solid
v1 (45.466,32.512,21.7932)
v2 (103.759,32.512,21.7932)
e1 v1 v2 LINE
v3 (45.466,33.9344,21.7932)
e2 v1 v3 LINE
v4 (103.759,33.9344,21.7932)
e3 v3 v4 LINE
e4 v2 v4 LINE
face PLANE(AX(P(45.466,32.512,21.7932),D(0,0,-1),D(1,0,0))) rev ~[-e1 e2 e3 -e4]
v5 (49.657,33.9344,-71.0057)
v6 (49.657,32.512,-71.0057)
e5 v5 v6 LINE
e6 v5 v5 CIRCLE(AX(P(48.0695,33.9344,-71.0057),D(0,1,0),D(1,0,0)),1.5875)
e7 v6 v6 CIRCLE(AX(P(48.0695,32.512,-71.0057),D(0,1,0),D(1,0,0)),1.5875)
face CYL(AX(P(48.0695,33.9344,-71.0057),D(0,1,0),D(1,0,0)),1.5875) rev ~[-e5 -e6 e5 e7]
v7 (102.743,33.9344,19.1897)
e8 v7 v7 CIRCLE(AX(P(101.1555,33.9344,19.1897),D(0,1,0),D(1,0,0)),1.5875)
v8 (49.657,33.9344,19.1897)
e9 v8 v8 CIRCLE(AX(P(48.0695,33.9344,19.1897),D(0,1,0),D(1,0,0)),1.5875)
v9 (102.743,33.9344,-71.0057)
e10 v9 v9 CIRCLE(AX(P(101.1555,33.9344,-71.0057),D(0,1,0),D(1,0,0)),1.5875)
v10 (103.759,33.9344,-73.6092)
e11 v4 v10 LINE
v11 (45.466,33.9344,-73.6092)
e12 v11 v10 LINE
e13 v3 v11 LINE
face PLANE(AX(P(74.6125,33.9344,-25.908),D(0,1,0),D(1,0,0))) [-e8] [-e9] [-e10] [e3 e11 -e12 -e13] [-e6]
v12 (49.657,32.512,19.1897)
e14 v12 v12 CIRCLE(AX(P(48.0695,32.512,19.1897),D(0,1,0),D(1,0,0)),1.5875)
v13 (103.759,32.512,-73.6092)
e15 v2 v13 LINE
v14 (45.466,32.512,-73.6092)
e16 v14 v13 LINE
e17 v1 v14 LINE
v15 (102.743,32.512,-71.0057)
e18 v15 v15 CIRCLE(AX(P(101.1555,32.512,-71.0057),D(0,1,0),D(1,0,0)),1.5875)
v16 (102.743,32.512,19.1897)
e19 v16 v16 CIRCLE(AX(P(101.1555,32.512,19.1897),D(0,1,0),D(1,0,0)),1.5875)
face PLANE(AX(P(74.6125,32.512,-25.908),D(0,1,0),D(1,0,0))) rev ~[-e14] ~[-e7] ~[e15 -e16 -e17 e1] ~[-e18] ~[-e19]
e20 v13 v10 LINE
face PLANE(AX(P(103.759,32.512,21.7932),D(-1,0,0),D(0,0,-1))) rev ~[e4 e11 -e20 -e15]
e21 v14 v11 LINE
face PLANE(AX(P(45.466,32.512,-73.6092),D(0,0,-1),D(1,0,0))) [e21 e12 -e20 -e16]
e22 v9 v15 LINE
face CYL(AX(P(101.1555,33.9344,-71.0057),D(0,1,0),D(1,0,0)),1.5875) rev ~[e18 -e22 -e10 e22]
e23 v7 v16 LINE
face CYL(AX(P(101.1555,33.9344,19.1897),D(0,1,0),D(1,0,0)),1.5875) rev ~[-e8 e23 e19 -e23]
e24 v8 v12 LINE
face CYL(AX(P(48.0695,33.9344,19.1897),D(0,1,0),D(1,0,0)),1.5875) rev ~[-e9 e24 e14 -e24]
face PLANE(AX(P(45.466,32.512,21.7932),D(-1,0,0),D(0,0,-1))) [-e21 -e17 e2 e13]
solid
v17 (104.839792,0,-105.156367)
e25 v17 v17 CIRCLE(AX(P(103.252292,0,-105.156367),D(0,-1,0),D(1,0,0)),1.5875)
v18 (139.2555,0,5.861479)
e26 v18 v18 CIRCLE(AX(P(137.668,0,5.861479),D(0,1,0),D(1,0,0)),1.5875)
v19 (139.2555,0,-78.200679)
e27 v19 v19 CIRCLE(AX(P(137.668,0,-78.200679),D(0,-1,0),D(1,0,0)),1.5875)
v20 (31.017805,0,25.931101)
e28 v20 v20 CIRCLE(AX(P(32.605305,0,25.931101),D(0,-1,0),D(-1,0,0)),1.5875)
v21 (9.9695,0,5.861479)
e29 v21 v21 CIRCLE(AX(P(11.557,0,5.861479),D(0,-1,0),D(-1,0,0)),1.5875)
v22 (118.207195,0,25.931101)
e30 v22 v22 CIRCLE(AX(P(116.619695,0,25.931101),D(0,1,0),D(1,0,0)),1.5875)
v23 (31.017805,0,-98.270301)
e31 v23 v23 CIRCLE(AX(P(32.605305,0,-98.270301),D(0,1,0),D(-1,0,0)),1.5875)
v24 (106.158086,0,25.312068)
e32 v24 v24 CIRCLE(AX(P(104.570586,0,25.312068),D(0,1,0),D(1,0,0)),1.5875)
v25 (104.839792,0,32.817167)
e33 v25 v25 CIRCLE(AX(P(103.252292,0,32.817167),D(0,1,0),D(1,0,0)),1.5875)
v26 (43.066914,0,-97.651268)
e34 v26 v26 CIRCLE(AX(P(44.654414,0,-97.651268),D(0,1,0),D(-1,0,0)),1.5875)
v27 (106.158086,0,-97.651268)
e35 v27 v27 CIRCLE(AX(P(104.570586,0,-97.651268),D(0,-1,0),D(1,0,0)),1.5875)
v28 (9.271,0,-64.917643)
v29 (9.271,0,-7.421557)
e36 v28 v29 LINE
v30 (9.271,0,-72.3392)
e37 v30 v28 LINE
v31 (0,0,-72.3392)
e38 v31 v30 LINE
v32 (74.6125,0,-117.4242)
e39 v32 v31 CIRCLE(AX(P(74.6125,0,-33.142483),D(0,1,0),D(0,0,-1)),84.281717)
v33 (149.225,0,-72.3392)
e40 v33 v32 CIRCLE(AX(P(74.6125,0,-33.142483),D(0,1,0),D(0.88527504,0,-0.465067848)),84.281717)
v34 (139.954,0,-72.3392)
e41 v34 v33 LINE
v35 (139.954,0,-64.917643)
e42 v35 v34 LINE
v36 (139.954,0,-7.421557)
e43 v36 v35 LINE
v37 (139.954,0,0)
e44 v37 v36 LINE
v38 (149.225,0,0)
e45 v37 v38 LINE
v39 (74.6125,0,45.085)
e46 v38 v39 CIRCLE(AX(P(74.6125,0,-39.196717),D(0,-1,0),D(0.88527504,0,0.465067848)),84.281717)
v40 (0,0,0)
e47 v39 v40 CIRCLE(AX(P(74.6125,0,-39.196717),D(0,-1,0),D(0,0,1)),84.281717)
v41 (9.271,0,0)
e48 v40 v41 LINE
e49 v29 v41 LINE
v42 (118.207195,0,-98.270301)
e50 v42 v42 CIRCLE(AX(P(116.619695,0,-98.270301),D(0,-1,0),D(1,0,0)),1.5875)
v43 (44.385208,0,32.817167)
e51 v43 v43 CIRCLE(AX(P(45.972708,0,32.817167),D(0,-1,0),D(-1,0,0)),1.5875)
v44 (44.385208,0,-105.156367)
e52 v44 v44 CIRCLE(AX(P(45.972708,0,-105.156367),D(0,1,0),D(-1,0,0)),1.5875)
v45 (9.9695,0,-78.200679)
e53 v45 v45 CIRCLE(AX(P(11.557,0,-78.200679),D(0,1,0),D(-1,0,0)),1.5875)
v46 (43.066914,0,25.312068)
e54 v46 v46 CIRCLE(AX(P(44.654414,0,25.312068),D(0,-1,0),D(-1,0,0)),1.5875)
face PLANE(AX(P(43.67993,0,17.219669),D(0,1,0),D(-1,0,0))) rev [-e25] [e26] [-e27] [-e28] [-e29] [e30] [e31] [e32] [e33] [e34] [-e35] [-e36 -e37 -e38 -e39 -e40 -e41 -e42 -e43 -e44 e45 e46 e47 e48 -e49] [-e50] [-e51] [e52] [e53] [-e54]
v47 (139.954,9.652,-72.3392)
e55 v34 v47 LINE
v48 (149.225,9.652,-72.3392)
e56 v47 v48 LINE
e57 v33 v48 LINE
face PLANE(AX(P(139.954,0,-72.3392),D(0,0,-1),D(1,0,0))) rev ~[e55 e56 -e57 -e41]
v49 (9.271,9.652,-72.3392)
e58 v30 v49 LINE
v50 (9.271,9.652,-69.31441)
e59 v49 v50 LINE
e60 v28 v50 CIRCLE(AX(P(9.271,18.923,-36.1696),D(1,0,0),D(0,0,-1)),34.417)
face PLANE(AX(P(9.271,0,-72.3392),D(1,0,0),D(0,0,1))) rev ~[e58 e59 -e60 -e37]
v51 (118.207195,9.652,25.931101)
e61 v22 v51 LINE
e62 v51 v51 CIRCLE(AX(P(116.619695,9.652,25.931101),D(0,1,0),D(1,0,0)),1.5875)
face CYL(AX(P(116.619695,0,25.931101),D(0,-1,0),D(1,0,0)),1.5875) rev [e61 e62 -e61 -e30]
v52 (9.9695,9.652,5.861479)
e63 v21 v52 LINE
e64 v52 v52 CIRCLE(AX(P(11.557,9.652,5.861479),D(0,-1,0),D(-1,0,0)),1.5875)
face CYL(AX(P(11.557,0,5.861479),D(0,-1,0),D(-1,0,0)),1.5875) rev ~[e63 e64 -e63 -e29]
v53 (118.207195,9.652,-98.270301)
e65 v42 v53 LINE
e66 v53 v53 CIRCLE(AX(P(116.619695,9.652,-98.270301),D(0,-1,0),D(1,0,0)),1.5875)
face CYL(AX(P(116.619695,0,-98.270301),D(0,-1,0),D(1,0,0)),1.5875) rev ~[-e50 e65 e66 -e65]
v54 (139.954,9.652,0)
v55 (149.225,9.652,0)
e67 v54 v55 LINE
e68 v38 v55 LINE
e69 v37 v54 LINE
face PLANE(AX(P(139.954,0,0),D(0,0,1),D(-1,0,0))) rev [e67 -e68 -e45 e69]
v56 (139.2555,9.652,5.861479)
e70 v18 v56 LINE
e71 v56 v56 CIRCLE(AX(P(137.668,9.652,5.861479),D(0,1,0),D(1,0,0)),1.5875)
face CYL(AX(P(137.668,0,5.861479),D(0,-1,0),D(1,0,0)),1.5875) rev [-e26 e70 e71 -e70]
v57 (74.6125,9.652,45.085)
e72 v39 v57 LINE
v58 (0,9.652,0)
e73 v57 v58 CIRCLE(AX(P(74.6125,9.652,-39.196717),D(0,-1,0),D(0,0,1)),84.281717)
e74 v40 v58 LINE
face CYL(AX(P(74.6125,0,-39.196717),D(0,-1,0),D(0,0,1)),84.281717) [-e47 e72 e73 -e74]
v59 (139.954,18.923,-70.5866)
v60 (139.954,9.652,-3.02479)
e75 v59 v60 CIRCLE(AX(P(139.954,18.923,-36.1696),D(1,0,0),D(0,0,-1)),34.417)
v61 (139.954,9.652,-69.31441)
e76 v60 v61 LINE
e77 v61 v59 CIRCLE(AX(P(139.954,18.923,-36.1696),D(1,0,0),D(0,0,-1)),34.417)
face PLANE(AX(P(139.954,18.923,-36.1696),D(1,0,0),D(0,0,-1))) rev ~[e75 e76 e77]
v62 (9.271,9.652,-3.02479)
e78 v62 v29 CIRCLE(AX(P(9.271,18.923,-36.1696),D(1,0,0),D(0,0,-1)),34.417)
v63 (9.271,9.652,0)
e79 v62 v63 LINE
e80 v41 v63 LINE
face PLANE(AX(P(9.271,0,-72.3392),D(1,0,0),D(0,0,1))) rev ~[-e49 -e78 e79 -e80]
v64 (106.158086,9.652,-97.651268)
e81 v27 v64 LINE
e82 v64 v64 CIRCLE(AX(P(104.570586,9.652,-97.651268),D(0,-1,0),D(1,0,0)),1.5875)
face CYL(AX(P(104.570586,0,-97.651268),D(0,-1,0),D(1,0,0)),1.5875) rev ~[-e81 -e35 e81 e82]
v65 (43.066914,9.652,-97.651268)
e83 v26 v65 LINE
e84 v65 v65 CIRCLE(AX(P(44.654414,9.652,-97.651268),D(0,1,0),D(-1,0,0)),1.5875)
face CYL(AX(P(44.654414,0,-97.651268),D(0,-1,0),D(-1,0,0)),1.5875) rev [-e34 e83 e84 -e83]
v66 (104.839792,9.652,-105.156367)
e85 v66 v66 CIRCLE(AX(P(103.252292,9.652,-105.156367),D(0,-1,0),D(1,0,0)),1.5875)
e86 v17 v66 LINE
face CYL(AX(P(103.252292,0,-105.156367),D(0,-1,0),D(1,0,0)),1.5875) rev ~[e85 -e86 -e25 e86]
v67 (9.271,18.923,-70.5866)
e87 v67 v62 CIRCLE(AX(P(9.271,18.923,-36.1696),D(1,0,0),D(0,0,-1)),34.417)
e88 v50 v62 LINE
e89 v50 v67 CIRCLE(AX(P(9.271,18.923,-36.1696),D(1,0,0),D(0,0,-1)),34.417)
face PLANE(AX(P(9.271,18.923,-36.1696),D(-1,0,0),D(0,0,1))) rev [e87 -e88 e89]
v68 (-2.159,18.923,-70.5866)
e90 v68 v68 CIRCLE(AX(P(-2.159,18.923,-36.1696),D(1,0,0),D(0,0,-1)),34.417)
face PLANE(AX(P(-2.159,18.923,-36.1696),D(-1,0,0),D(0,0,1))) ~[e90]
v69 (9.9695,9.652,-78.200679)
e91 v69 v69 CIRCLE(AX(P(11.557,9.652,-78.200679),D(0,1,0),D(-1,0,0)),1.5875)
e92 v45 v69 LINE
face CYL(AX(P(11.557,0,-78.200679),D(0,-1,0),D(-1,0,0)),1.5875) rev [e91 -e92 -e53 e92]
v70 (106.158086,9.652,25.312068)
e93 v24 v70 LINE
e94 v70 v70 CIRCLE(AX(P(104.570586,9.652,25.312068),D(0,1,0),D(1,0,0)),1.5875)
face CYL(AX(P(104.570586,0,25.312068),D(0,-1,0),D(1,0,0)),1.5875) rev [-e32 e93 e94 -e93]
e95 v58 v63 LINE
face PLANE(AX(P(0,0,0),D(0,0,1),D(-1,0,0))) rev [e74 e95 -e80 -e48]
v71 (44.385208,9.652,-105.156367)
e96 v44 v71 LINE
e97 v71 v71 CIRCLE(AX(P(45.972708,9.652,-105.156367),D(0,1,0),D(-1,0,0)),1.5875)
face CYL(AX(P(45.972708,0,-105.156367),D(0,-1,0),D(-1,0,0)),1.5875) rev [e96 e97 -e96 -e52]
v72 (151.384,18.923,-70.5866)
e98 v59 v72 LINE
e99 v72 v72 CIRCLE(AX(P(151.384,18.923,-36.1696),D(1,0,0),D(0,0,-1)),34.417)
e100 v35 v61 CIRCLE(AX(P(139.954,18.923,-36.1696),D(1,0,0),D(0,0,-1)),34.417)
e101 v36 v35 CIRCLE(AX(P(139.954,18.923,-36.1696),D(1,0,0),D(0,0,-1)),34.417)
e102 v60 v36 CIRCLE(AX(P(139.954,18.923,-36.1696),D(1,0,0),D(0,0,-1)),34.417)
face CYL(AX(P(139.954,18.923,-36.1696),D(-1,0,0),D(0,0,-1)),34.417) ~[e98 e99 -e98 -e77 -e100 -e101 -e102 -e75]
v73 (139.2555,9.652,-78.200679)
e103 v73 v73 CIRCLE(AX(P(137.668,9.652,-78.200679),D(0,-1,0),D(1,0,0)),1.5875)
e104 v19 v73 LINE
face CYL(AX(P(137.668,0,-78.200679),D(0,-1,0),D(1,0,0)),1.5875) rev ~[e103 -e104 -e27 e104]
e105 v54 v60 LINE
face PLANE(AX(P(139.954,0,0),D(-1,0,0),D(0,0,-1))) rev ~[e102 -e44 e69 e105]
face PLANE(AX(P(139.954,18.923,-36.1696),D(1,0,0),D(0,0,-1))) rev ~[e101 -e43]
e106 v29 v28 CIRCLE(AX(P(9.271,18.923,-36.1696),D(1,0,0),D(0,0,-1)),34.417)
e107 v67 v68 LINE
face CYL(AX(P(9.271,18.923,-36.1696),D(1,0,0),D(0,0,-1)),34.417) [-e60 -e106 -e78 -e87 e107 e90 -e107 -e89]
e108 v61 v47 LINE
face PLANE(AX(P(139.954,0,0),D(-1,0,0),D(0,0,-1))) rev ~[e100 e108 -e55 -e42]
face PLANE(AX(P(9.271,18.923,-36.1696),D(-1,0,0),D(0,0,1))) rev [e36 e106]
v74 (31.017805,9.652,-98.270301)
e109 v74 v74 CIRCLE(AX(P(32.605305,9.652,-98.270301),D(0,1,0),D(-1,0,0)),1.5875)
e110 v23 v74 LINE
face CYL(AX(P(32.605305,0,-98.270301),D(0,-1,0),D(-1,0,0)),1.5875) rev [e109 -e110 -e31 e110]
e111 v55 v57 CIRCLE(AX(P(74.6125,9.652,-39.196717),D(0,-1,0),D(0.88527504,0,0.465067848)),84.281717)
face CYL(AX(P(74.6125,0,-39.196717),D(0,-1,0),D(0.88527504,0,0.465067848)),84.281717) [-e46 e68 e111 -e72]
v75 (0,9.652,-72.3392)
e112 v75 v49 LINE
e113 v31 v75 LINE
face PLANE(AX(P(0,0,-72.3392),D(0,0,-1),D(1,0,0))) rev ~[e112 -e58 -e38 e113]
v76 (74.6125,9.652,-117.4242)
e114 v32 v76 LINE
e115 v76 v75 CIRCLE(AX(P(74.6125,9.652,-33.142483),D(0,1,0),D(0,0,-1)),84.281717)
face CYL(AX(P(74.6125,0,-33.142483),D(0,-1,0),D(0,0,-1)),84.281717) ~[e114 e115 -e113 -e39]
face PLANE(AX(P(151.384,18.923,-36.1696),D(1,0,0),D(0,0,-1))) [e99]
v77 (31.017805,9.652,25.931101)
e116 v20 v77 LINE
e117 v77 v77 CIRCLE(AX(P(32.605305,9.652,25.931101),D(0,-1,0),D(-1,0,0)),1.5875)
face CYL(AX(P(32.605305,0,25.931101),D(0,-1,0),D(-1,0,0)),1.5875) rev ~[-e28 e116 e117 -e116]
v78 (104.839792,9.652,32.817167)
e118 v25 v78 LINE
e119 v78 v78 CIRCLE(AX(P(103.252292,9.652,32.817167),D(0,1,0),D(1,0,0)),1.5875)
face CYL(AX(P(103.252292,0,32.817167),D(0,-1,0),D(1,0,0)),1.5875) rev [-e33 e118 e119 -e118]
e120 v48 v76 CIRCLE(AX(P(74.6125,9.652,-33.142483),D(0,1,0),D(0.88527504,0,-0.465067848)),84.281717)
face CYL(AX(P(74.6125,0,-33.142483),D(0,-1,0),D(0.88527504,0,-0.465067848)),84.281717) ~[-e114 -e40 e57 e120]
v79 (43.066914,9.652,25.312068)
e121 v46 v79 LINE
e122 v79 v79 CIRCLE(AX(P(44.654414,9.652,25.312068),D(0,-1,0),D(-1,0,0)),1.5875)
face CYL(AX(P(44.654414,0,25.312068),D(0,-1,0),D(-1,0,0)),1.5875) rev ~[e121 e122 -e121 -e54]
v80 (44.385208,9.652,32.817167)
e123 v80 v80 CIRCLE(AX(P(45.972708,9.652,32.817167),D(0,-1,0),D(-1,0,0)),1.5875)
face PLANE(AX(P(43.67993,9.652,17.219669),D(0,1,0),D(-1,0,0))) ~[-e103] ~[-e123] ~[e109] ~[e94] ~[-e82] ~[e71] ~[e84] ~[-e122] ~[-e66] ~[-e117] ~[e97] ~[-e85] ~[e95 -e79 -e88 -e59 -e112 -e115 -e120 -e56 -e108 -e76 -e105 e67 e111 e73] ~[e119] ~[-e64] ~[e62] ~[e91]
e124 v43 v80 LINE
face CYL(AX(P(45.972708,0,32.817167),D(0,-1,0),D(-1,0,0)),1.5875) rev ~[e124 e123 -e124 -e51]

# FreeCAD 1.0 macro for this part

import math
import FreeCAD as App
import Part
import Sketcher
Q = App.Units.Quantity


def add_polygon(sketch, points):
    """Adds a closed chain of lines whose ends are joined by coincident constraints."""
    first, n = sketch.GeometryCount, len(points)
    for a, b in zip(points, points[1:] + points[:1]):
        sketch.addGeometry(Part.LineSegment(App.Vector(*a, 0), App.Vector(*b, 0)), False)
    for i in range(n):
        sketch.addConstraint(Sketcher.Constraint("Coincident", first + i, 2, first + (i + 1) % n, 1))

doc = App.newDocument("Part")
body = doc.addObject("PartDesign::Body", "Body")

# Sketch on XZ plane
sketch1 = body.newObject("Sketcher::SketchObject", "Sketch")
sketch1.AttachmentSupport = (doc.getObject("XZ_Plane"), [""])
sketch1.MapMode = "FlatFace"
sketch1.addGeometry([
    Part.ArcOfCircle(Part.Circle(App.Vector(75, -33, 0), App.Vector(0, 0, 1), 84), math.radians(-152), math.radians(-90)),  # 0
    Part.LineSegment(App.Vector(0, -72, 0), App.Vector(9, -72, 0)),  # 1
    Part.LineSegment(App.Vector(9, -72, 0), App.Vector(9, 0, 0)),  # 2
    Part.LineSegment(App.Vector(9, 0, 0), App.Vector(140, 0, 0)),  # 3
    Part.LineSegment(App.Vector(140, 0, 0), App.Vector(140, -72, 0)),  # 4
    Part.LineSegment(App.Vector(140, -72, 0), App.Vector(149, -72, 0)),  # 5
    Part.ArcOfCircle(Part.Circle(App.Vector(75, -33, 0), App.Vector(0, 0, 1), 84), math.radians(-90), math.radians(-28)),  # 6
], False)
sketch1.addConstraint([
    Sketcher.Constraint("Coincident", 0, 1, 1, 1),
    Sketcher.Constraint("Coincident", 1, 2, 2, 1),
    Sketcher.Constraint("Coincident", 2, 2, 3, 1),
    Sketcher.Constraint("Coincident", 3, 2, 4, 1),
    Sketcher.Constraint("Coincident", 4, 2, 5, 1),
    Sketcher.Constraint("Coincident", 5, 2, 6, 2),
    Sketcher.Constraint("Tangent", 6, 1, 0, 2),
    Sketcher.Constraint("Horizontal", 1),
    Sketcher.Constraint("Vertical", 2),
    Sketcher.Constraint("Horizontal", 3),
    Sketcher.Constraint("Vertical", 4),
    Sketcher.Constraint("Horizontal", 5),
    Sketcher.Constraint("Equal", 0, 6),
    Sketcher.Constraint("PointOnObject", 0, 1, -2),
    Sketcher.Constraint("PointOnObject", 2, 2, -1),
    Sketcher.Constraint("Horizontal", 1, 2, 4, 2),
    Sketcher.Constraint("Vertical", 0, 3, 6, 1),
    Sketcher.Constraint("Equal", 1, 5),
    Sketcher.Constraint("DistanceX", 1, 1, 1, 2, Q("0.365 in")),
    Sketcher.Constraint("DistanceX", 3, 1, 3, 2, Q("5.145 in")),
    Sketcher.Constraint("DistanceY", 2, 1, 2, 2, Q("2.848 in")),
    Sketcher.Constraint("DistanceY", 6, 1, -1, 1, Q("4.623 in")),
])
pad1 = body.newObject("PartDesign::Pad", "Pad")
pad1.Profile = sketch1
pad1.Length = Q("0.38 in")
pad1.Reversed = True

# Sketch on XZ plane
sketch2 = body.newObject("Sketcher::SketchObject", "Sketch001")
sketch2.AttachmentSupport = (doc.getObject("XZ_Plane"), [""])
sketch2.MapMode = "FlatFace"
sketch2.addGeometry([
    Part.Circle(App.Vector(116.6, -98.3, 0), App.Vector(0, 0, 1), 1.6),
    Part.Circle(App.Vector(137.7, -78.2, 0), App.Vector(0, 0, 1), 1.6),
    Part.Circle(App.Vector(103.3, -105.2, 0), App.Vector(0, 0, 1), 1.6),
    Part.Circle(App.Vector(104.6, -97.7, 0), App.Vector(0, 0, 1), 1.6),
], False)
sketch2.addConstraint([
    Sketcher.Constraint("Equal", 0, 1),
    Sketcher.Constraint("Equal", 1, 2),
    Sketcher.Constraint("Equal", 2, 3),
    Sketcher.Constraint("Diameter", 0, Q("0.125 in")),
    Sketcher.Constraint("DistanceX", -1, 1, 1, 3, Q("5.42 in")),
    Sketcher.Constraint("DistanceY", 0, 3, -1, 1, 98.270301),
    Sketcher.Constraint("DistanceY", 2, 3, 3, 3, 7.505098),
    Sketcher.Constraint("DistanceY", 1, 3, -1, 1, 78.200679),
    Sketcher.Constraint("DistanceY", 3, 3, -1, 1, 97.651268),
    Sketcher.Constraint("DistanceX", 3, 3, 0, 3, 12.049109),
    Sketcher.Constraint("DistanceX", -1, 1, 0, 3, 116.619695),
    Sketcher.Constraint("DistanceX", -1, 1, 2, 3, 103.252292),
])
pocket1 = body.newObject("PartDesign::Pocket", "Pocket")
pocket1.Profile = sketch2
pocket1.Length = Q("0.38 in")
doc.recompute()

datumplane = body.newObject("PartDesign::Plane", "DatumPlane")
datumplane.AttachmentSupport = (doc.getObject("XY_Plane"), [""])
datumplane.MapMode = "FlatFace"
datumplane.AttachmentOffset = App.Placement(App.Vector(0, 0, -1.424 * 25.4), App.Rotation())
mirrored = body.newObject("PartDesign::Mirrored", "Mirrored")
mirrored.Originals = [pad1]
mirrored.MirrorPlane = (datumplane, [""])
body.Tip = mirrored
doc.recompute()

datumplane2 = body.newObject("PartDesign::Plane", "DatumPlane001")
datumplane2.AttachmentSupport = (doc.getObject("YZ_Plane"), [""])
datumplane2.MapMode = "FlatFace"
datumplane2.AttachmentOffset = App.Placement(App.Vector(0, 0, 2.9375 * 25.4), App.Rotation())
mirrored2 = body.newObject("PartDesign::Mirrored", "Mirrored001")
mirrored2.Originals = [pocket1]
mirrored2.MirrorPlane = (datumplane2, [""])
body.Tip = mirrored2
doc.recompute()

datumplane3 = body.newObject("PartDesign::Plane", "DatumPlane002")
datumplane3.AttachmentSupport = (doc.getObject("XY_Plane"), [""])
datumplane3.MapMode = "FlatFace"
datumplane3.AttachmentOffset = App.Placement(App.Vector(0, 0, -1.424 * 25.4), App.Rotation())
mirrored3 = body.newObject("PartDesign::Mirrored", "Mirrored002")
mirrored3.Originals = [pocket1]
mirrored3.MirrorPlane = (datumplane3, [""])
body.Tip = mirrored3

# Sketch on XZ plane
sketch3 = body.newObject("Sketcher::SketchObject", "Sketch002")
sketch3.AttachmentSupport = (doc.getObject("XZ_Plane"), [""])
sketch3.MapMode = "FlatFace"
sketch3.addGeometry([
    Part.Circle(App.Vector(32.6, 25.9, 0), App.Vector(0, 0, 1), 1.6),
    Part.Circle(App.Vector(11.6, 5.9, 0), App.Vector(0, 0, 1), 1.6),
    Part.Circle(App.Vector(46, 32.8, 0), App.Vector(0, 0, 1), 1.6),
    Part.Circle(App.Vector(44.7, 25.3, 0), App.Vector(0, 0, 1), 1.6),
], False)
sketch3.addConstraint([
    Sketcher.Constraint("Equal", 0, 1),
    Sketcher.Constraint("Equal", 1, 2),
    Sketcher.Constraint("Equal", 2, 3),
    Sketcher.Constraint("Diameter", 0, Q("0.125 in")),
    Sketcher.Constraint("DistanceX", -1, 1, 1, 3, Q("0.455 in")),
    Sketcher.Constraint("DistanceY", -1, 1, 0, 3, 25.931101),
    Sketcher.Constraint("DistanceY", 3, 3, 2, 3, 7.505098),
    Sketcher.Constraint("DistanceY", -1, 1, 1, 3, 5.861479),
    Sketcher.Constraint("DistanceY", -1, 1, 3, 3, 25.312068),
    Sketcher.Constraint("DistanceX", 0, 3, 3, 3, 12.049109),
    Sketcher.Constraint("DistanceX", -1, 1, 0, 3, 32.605305),
    Sketcher.Constraint("DistanceX", -1, 1, 2, 3, 45.972708),
])
pocket2 = body.newObject("PartDesign::Pocket", "Pocket001")
pocket2.Profile = sketch3
pocket2.Length = Q("0.38 in")

# Sketch on YZ plane
sketch4 = body.newObject("Sketcher::SketchObject", "Sketch003")
sketch4.AttachmentSupport = (doc.getObject("YZ_Plane"), [""])
sketch4.MapMode = "FlatFace"
sketch4.AttachmentOffset = App.Placement(App.Vector(0, 0, 5.51 * 25.4), App.Rotation())
sketch4.addGeometry(Part.Circle(App.Vector(19, -36, 0), App.Vector(0, 0, 1), 34), False)
sketch4.addConstraint([
    Sketcher.Constraint("Diameter", 0, Q("2.71 in")),
    Sketcher.Constraint("DistanceX", -1, 1, 0, 3, Q("0.745 in")),
    Sketcher.Constraint("DistanceY", 0, 3, -1, 1, Q("1.424 in")),
])
pad2 = body.newObject("PartDesign::Pad", "Pad001")
pad2.Profile = sketch4
pad2.Length = Q("0.45 in")
doc.recompute()

datumplane4 = body.newObject("PartDesign::Plane", "DatumPlane003")
datumplane4.AttachmentSupport = (doc.getObject("YZ_Plane"), [""])
datumplane4.MapMode = "FlatFace"
datumplane4.AttachmentOffset = App.Placement(App.Vector(0, 0, 2.9375 * 25.4), App.Rotation())
mirrored4 = body.newObject("PartDesign::Mirrored", "Mirrored003")
mirrored4.Originals = [pad2]
mirrored4.MirrorPlane = (datumplane4, [""])
body.Tip = mirrored4
body2 = doc.addObject("PartDesign::Body", "Body001")

# Sketch on XZ plane
sketch5 = body2.newObject("Sketcher::SketchObject", "Sketch004")
sketch5.AttachmentSupport = (doc.getObject("XZ_Plane001"), [""])
sketch5.MapMode = "FlatFace"
sketch5.AttachmentOffset = App.Placement(App.Vector(0, 0, -1.28 * 25.4), App.Rotation())
add_polygon(sketch5, [(45, -74), (45, 22), (104, 22), (104, -74)])  # lines 0-3
sketch5.addConstraint([
    Sketcher.Constraint("Vertical", 0),
    Sketcher.Constraint("Horizontal", 1),
    Sketcher.Constraint("Vertical", 2),
    Sketcher.Constraint("Horizontal", 3),
    Sketcher.Constraint("DistanceX", 1, 1, 1, 2, Q("2.295 in")),
    Sketcher.Constraint("DistanceY", 0, 1, 0, 2, Q("3.756 in")),
    Sketcher.Constraint("DistanceX", -1, 1, 0, 2, Q("1.79 in")),
    Sketcher.Constraint("DistanceY", -1, 1, 0, 2, Q("0.858 in")),
])
pad3 = body2.newObject("PartDesign::Pad", "Pad002")
pad3.Profile = sketch5
pad3.Length = Q("0.056 in")
pad3.Reversed = True

# Sketch on XZ plane
sketch6 = body2.newObject("Sketcher::SketchObject", "Sketch005")
sketch6.AttachmentSupport = (doc.getObject("XZ_Plane001"), [""])
sketch6.MapMode = "FlatFace"
sketch6.AttachmentOffset = App.Placement(App.Vector(0, 0, -1.336 * 25.4), App.Rotation())
sketch6.addGeometry([
    Part.Circle(App.Vector(101.2, 19.2, 0), App.Vector(0, 0, 1), 1.6),
    Part.Circle(App.Vector(48.1, 19.2, 0), App.Vector(0, 0, 1), 1.6),
    Part.Circle(App.Vector(101.2, -71, 0), App.Vector(0, 0, 1), 1.6),
    Part.Circle(App.Vector(48.1, -71, 0), App.Vector(0, 0, 1), 1.6),
], False)
sketch6.addConstraint([
    Sketcher.Constraint("Equal", 0, 1),
    Sketcher.Constraint("Equal", 1, 2),
    Sketcher.Constraint("Equal", 2, 3),
    Sketcher.Constraint("Horizontal", 0, 3, 1, 3),
    Sketcher.Constraint("Horizontal", 2, 3, 3, 3),
    Sketcher.Constraint("Vertical", 0, 3, 2, 3),
    Sketcher.Constraint("Vertical", 1, 3, 3, 3),
    Sketcher.Constraint("Diameter", 0, Q("0.125 in")),
    Sketcher.Constraint("DistanceX", 1, 3, 0, 3, Q("2.09 in")),
    Sketcher.Constraint("DistanceY", 2, 3, 0, 3, Q("3.551 in")),
    Sketcher.Constraint("DistanceX", -1, 1, 0, 3, Q("3.9825 in")),
    Sketcher.Constraint("DistanceY", -1, 1, 0, 3, Q("0.7555 in")),
])
pocket3 = body2.newObject("PartDesign::Pocket", "Pocket002")
pocket3.Profile = sketch6
pocket3.Length = Q("0.056 in")
pocket3.Reversed = True

doc.recompute()
